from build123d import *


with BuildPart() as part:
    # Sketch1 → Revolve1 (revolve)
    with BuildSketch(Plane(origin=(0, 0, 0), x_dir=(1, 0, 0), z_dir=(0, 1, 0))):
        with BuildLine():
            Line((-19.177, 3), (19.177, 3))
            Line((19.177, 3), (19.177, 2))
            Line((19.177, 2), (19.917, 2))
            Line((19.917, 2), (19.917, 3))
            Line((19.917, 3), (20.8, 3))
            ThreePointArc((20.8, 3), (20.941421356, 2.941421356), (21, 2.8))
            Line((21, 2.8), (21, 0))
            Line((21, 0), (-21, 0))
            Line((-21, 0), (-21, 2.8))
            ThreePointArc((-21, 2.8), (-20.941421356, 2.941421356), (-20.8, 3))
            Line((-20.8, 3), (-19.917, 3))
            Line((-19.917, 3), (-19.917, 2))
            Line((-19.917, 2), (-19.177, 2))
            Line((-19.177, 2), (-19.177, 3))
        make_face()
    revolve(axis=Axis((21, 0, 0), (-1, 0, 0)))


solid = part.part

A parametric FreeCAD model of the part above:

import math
import FreeCAD as App
import Part
import Sketcher
from FreeCAD import Vector

doc = App.newDocument("Part")
body = doc.addObject("PartDesign::Body", "Body")

sketch1 = doc.addObject("Sketcher::SketchObject", "Sketch")
body.addObject(sketch1)
sketch1.AttachmentSupport = (doc.XZ_Plane, [""])
sketch1.MapMode = "FlatFace"
sketch1.addGeometry([
    Part.LineSegment(Vector(19.18, -3, 0), Vector(-19.18, -3, 0)),
    Part.LineSegment(Vector(-19.18, -3, 0), Vector(-19.18, -2, 0)),
    Part.LineSegment(Vector(-19.18, -2, 0), Vector(-19.92, -2, 0)),
    Part.LineSegment(Vector(-19.92, -2, 0), Vector(-19.92, -3, 0)),
    Part.LineSegment(Vector(-19.92, -3, 0), Vector(-20.8, -3, 0)),
    Part.ArcOfCircle(Part.Circle(Vector(-20.8, -2.8, 0), Vector(0, 0, 1), 0.2), math.radians(-180), math.radians(-90)),
    Part.LineSegment(Vector(-21, -2.8, 0), Vector(-21, 0, 0)),
    Part.LineSegment(Vector(-21, 0, 0), Vector(21, 0, 0)),
    Part.LineSegment(Vector(21, 0, 0), Vector(21, -2.8, 0)),
    Part.ArcOfCircle(Part.Circle(Vector(20.8, -2.8, 0), Vector(0, 0, 1), 0.2), math.radians(-90), math.radians(0)),
    Part.LineSegment(Vector(20.8, -3, 0), Vector(19.92, -3, 0)),
    Part.LineSegment(Vector(19.92, -3, 0), Vector(19.92, -2, 0)),
    Part.LineSegment(Vector(19.92, -2, 0), Vector(19.18, -2, 0)),
    Part.LineSegment(Vector(19.18, -2, 0), Vector(19.18, -3, 0)),
], False)
sketch1.addConstraint([
    Sketcher.Constraint("Coincident", 0, 2, 1, 1),
    Sketcher.Constraint("Coincident", 1, 2, 2, 1),
    Sketcher.Constraint("Coincident", 2, 2, 3, 1),
    Sketcher.Constraint("Coincident", 3, 2, 4, 1),
    Sketcher.Constraint("Tangent", 4, 2, 5, 2),
    Sketcher.Constraint("Tangent", 5, 1, 6, 1),
    Sketcher.Constraint("Coincident", 6, 2, 7, 1),
    Sketcher.Constraint("Coincident", 7, 2, 8, 1),
    Sketcher.Constraint("Tangent", 8, 2, 9, 2),
    Sketcher.Constraint("Tangent", 9, 1, 10, 1),
    Sketcher.Constraint("Coincident", 10, 2, 11, 1),
    Sketcher.Constraint("Coincident", 11, 2, 12, 1),
    Sketcher.Constraint("Coincident", 12, 2, 13, 1),
    Sketcher.Constraint("Coincident", 13, 2, 0, 1),
    Sketcher.Constraint("Horizontal", 0),
    Sketcher.Constraint("Vertical", 1),
    Sketcher.Constraint("Horizontal", 2),
    Sketcher.Constraint("Vertical", 3),
    Sketcher.Constraint("Horizontal", 4),
    Sketcher.Constraint("Vertical", 6),
    Sketcher.Constraint("Horizontal", 7),
    Sketcher.Constraint("Vertical", 8),
    Sketcher.Constraint("Horizontal", 10),
    Sketcher.Constraint("Vertical", 11),
    Sketcher.Constraint("Horizontal", 12),
    Sketcher.Constraint("Vertical", 13),
    Sketcher.Constraint("Equal", 5, 9),
    Sketcher.Constraint("Symmetric", 6, 2, 7, 2, -1, 1),
    Sketcher.Constraint("Symmetric", 3, 2, 10, 2, -2),
    Sketcher.Constraint("Symmetric", 1, 2, 12, 2, -2),
    Sketcher.Constraint("Horizontal", 0, 2, 3, 2),
    Sketcher.Constraint("Radius", 5, 0.2),
    Sketcher.Constraint("DistanceX", 7, 1, 7, 2, 42.0),
    Sketcher.Constraint("DistanceY", 1, 1, 1, 2, 1.0),
    Sketcher.Constraint("DistanceY", 6, 1, 6, 2, 2.8),
    Sketcher.Constraint("DistanceX", 2, 2, 2, 1, 0.74),
    Sketcher.Constraint("DistanceX", 0, 2, 0, 1, 38.354),
])
revolution = doc.addObject("PartDesign::Revolution", "Revolution")
body.addObject(revolution)
revolution.Profile = sketch1
revolution.ReferenceAxis = (sketch1, ["H_Axis"])
revolution.Angle = 360

doc.recompute()
